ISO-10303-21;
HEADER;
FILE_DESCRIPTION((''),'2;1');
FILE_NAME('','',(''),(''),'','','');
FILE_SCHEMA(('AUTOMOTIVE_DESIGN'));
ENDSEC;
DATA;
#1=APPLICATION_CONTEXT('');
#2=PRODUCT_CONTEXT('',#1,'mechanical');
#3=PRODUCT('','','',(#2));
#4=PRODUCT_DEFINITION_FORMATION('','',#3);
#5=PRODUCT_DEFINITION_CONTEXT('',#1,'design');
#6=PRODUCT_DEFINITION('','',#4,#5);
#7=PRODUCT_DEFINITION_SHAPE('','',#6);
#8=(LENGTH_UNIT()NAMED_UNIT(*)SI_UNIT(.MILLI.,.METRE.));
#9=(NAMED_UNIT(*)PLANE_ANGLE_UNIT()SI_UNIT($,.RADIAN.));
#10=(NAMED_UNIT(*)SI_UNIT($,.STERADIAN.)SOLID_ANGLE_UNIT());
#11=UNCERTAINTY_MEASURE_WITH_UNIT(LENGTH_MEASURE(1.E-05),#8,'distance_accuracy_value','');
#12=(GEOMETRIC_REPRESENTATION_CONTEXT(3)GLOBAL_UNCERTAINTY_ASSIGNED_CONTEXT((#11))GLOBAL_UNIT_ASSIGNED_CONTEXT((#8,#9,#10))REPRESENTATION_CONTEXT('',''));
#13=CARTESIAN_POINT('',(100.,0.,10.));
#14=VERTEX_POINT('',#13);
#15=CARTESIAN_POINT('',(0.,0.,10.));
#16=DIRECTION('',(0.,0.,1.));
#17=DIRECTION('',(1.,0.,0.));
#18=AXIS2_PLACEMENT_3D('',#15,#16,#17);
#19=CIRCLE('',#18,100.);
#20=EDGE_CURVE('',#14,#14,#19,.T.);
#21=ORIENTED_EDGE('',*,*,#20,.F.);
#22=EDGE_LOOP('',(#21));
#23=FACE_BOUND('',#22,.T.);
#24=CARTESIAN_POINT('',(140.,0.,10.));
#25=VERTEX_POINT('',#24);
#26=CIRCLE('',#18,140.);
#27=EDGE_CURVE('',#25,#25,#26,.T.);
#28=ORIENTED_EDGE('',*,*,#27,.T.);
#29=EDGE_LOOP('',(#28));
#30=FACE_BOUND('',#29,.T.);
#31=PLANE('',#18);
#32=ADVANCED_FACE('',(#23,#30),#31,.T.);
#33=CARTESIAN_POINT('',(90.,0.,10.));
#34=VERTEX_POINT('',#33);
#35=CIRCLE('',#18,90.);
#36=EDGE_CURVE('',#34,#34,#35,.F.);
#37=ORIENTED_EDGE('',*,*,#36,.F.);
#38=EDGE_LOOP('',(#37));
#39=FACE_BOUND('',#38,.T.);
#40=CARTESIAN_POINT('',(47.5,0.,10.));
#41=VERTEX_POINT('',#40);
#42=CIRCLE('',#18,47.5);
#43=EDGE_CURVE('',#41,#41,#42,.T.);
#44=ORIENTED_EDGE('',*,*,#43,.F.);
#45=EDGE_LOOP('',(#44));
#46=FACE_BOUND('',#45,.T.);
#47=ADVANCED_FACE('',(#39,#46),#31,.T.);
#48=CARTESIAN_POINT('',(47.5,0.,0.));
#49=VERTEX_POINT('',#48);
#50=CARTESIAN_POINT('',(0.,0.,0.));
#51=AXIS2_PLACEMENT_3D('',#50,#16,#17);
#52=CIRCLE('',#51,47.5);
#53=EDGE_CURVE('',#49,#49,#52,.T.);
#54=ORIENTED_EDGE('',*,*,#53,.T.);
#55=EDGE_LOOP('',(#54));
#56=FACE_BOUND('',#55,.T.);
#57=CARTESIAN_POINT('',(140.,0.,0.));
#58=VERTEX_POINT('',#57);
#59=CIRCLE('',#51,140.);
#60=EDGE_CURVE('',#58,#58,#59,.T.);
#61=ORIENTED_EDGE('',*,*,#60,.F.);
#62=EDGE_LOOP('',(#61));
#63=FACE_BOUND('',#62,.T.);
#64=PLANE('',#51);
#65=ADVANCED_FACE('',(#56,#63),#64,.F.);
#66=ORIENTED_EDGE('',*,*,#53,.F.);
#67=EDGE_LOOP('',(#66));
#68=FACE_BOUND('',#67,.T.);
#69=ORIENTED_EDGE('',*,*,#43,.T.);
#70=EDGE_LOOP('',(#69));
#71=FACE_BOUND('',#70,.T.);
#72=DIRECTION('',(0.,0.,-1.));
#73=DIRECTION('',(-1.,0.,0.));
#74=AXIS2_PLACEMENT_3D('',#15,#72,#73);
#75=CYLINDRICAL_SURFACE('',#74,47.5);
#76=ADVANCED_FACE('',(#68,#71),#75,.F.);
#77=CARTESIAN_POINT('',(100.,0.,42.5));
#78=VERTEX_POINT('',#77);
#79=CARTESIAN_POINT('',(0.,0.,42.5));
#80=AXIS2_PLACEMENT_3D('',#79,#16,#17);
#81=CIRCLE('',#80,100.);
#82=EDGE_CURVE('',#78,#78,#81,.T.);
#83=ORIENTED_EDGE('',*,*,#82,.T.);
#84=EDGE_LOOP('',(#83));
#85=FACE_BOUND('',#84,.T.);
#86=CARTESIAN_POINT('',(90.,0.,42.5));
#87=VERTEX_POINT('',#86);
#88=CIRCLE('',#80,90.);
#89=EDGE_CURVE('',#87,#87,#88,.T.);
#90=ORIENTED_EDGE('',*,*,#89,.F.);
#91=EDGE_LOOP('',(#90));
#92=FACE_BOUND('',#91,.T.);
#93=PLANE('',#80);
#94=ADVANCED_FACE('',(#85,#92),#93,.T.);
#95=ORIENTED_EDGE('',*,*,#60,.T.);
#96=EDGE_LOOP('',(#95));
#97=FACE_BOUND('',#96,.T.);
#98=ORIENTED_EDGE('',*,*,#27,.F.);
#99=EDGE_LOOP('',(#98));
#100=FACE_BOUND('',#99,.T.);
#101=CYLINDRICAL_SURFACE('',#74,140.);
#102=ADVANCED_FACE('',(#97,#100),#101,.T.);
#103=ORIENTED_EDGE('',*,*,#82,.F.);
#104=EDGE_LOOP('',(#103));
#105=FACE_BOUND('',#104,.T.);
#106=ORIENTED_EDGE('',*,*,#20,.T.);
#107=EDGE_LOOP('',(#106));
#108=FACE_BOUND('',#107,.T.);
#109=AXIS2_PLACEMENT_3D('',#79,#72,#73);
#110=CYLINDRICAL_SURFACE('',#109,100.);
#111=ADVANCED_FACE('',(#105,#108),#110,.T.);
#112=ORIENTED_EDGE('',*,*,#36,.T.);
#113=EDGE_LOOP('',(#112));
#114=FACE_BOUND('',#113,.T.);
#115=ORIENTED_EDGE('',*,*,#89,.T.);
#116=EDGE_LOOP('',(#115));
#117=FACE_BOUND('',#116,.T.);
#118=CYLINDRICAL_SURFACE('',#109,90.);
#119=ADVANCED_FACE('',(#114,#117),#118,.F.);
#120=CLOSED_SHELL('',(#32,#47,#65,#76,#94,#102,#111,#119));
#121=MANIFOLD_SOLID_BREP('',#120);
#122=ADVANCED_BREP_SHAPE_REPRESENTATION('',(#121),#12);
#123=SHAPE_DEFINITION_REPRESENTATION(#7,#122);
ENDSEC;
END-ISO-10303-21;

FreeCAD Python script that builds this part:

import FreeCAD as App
import Part
import Sketcher

V = App.Vector

doc = App.newDocument("Part")
body = doc.addObject("PartDesign::Body", "Body")

sketch1 = doc.addObject("Sketcher::SketchObject", "Sketch")
body.addObject(sketch1)
sketch1.AttachmentSupport = (doc.XY_Plane, [""])
sketch1.MapMode = "FlatFace"
sketch1.addGeometry([
    Part.Circle(V(0, 0, 0), V(0, 0, 1), 140),
    Part.Circle(V(0, 0, 0), V(0, 0, 1), 48),
], False)
sketch1.addConstraint([
    Sketcher.Constraint("Coincident", 0, 3, -1, 1),
    Sketcher.Constraint("Coincident", 1, 3, -1, 1),
    Sketcher.Constraint("Diameter", 0, 280.0),
    Sketcher.Constraint("Diameter", 1, 95.0),
])
pad1 = doc.addObject("PartDesign::Pad", "Pad")
body.addObject(pad1)
pad1.Profile = sketch1
pad1.Length = 10

sketch2 = doc.addObject("Sketcher::SketchObject", "Sketch001")
body.addObject(sketch2)
sketch2.AttachmentSupport = (doc.XY_Plane, [""])
sketch2.MapMode = "FlatFace"
sketch2.AttachmentOffset = App.Placement(V(0, 0, 10), App.Rotation())
sketch2.addGeometry([
    Part.Circle(V(0, 0, 0), V(0, 0, 1), 100),
    Part.Circle(V(0, 0, 0), V(0, 0, 1), 90),
], False)
sketch2.addConstraint([
    Sketcher.Constraint("Coincident", 0, 3, -1, 1),
    Sketcher.Constraint("Coincident", 1, 3, -1, 1),
    Sketcher.Constraint("Diameter", 0, 200.0),
    Sketcher.Constraint("Diameter", 1, 180.0),
])
pad2 = doc.addObject("PartDesign::Pad", "Pad001")
body.addObject(pad2)
pad2.Profile = sketch2
pad2.Length = 32.5

doc.recompute()
